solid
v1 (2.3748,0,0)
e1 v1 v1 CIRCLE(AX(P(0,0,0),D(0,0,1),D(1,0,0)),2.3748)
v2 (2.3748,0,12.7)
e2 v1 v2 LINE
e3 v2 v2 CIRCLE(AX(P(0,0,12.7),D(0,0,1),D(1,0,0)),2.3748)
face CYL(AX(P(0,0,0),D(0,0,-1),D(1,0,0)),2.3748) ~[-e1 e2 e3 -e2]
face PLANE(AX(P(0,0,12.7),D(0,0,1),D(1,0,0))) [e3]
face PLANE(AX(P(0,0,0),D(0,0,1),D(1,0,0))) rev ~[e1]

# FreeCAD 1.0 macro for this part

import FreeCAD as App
import Part
import Sketcher
Q = App.Units.Quantity

doc = App.newDocument("Part")
body = doc.addObject("PartDesign::Body", "Body")

# Sketch on XY plane
sketch1 = body.newObject("Sketcher::SketchObject", "Sketch")
sketch1.AttachmentSupport = (doc.getObject("XY_Plane"), [""])
sketch1.MapMode = "FlatFace"
sketch1.addGeometry(Part.Circle(App.Vector(0, 0, 0), App.Vector(0, 0, 1), 2.4), False)
sketch1.addConstraint([
    Sketcher.Constraint("Coincident", 0, 3, -1, 1),
    Sketcher.Constraint("Diameter", 0, Q("0.187 in")),
])
pad1 = body.newObject("PartDesign::Pad", "Pad")
pad1.Profile = sketch1
pad1.Length = Q("0.5 in")

doc.recompute()
